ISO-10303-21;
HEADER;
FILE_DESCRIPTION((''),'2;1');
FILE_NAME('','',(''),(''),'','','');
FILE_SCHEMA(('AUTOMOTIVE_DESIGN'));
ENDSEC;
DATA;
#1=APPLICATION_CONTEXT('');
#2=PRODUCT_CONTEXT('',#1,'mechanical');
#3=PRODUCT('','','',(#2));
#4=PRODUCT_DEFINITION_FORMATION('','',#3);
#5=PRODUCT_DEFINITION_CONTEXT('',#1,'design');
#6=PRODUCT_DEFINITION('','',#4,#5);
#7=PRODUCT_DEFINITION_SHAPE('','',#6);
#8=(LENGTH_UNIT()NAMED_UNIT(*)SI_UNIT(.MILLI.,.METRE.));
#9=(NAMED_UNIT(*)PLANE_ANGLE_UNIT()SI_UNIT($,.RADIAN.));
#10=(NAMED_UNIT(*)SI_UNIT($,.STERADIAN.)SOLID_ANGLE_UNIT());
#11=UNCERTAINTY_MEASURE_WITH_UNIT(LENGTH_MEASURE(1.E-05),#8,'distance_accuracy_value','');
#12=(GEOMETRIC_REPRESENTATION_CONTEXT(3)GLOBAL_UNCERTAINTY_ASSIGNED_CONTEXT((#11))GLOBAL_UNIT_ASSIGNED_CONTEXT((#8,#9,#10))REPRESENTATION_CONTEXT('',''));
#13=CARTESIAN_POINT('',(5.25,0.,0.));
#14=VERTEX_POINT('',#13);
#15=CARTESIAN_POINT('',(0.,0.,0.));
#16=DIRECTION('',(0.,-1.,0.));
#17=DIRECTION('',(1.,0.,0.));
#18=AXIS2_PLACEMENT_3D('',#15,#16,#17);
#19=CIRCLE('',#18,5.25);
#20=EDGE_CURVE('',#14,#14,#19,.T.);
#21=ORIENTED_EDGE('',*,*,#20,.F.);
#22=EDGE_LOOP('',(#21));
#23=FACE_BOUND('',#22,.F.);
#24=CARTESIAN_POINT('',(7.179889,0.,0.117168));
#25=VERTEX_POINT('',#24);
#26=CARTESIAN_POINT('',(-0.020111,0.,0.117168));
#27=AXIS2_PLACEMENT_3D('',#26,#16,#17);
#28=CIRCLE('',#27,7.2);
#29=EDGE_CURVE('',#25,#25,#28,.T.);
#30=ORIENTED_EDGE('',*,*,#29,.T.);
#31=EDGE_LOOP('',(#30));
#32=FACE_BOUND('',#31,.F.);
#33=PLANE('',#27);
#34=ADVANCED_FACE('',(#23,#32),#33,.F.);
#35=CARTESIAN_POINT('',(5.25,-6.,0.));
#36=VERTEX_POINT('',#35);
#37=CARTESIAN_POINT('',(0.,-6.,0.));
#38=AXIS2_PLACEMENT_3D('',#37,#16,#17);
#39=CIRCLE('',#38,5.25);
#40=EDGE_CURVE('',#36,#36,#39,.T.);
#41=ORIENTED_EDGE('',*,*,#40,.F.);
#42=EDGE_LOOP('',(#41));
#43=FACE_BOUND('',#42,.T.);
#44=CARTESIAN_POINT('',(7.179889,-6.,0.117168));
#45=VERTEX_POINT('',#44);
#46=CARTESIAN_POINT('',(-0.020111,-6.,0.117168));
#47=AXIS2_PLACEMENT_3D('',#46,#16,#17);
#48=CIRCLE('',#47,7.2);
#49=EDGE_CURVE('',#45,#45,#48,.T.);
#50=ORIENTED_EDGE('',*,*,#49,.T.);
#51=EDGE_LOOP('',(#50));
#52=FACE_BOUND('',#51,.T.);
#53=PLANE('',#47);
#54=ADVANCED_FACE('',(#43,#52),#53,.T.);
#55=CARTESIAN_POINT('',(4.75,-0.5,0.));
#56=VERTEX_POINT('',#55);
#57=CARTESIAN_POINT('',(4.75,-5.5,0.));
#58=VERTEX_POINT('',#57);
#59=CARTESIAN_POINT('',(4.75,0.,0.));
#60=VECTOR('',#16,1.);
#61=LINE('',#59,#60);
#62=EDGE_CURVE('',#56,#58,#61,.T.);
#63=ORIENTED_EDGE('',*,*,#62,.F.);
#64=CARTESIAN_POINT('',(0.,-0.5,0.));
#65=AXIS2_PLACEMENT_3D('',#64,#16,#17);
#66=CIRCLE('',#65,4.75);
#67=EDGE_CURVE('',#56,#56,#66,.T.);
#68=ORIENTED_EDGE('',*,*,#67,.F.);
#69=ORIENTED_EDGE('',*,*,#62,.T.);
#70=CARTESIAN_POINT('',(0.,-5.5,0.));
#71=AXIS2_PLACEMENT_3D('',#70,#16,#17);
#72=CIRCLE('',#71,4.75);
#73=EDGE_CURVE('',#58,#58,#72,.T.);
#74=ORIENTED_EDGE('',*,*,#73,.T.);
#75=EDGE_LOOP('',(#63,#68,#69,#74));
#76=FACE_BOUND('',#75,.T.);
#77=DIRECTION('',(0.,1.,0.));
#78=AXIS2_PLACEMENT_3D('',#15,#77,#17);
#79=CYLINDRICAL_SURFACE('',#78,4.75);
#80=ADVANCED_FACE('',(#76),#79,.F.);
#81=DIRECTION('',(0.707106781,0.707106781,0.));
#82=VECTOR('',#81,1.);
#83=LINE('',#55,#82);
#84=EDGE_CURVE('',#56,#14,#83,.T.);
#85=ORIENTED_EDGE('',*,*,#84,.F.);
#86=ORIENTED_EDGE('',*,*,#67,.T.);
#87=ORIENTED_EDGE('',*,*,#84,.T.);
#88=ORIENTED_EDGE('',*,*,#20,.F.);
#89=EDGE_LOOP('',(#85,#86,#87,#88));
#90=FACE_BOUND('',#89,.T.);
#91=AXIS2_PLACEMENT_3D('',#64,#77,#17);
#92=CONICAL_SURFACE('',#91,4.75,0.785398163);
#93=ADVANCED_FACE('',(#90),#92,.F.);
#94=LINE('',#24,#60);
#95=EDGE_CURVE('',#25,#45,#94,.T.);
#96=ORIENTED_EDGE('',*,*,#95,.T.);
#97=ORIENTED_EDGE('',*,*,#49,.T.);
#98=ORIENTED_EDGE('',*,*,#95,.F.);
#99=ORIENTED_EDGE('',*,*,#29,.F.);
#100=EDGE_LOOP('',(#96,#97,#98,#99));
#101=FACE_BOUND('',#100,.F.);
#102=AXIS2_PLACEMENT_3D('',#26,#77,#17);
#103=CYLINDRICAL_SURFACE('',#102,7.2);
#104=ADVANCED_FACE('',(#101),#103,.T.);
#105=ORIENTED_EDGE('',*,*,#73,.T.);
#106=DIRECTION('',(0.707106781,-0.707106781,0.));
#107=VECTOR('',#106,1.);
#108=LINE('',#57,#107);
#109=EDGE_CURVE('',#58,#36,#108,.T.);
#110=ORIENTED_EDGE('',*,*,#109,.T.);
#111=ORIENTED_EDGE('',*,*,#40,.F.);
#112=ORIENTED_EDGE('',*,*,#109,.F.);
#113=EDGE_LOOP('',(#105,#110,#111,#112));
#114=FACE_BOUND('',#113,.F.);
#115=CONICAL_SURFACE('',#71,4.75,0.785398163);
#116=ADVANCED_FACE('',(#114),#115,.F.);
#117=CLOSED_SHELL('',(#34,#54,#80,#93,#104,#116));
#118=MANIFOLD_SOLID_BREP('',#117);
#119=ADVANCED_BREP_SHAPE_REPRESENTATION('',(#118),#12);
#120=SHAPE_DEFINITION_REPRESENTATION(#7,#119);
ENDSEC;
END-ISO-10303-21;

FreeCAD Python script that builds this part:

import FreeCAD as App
import Part
import Sketcher
from FreeCAD import Vector


def edges_at(feature, points):
    """Names of the edges that pass closest to the given points."""
    edges = feature.Shape.Edges
    near = lambda p: min(range(len(edges)), key=lambda i: edges[i].distToShape(Part.Vertex(*p))[0])
    return sorted({f"Edge{near(p) + 1}" for p in points})

doc = App.newDocument("Part")
body = doc.addObject("PartDesign::Body", "Body")
body.AllowCompound = True

# Sketch on XZ plane
sketch1 = doc.addObject("Sketcher::SketchObject", "Sketch")
body.addObject(sketch1)
sketch1.AttachmentSupport = (doc.XZ_Plane, [""])
sketch1.MapMode = "FlatFace"
sketch1.addGeometry([
    Part.Circle(Vector(0, 0.1, 0), Vector(0, 0, 1), 7.2),
    Part.Circle(Vector(0, 0, 0), Vector(0, 0, 1), 4.8),
    Part.Circle(Vector(0, 0, 0), Vector(0, 0, 1), 4.5),
], False)
sketch1.addConstraint([
    Sketcher.Constraint("Coincident", 1, 3, -1, 1),
    Sketcher.Constraint("Coincident", 2, 3, -1, 1),
    Sketcher.Constraint("Diameter", 2, 9.0),
    Sketcher.Constraint("Diameter", 0, 14.4),
    Sketcher.Constraint("Diameter", 1, 9.5),
    Sketcher.Constraint("DistanceX", 0, 3, -1, 1, 0.020111),
    Sketcher.Constraint("DistanceY", -1, 1, 0, 3, 0.117168),
])
pad1 = doc.addObject("PartDesign::Pad", "Pad")
body.addObject(pad1)
pad1.Profile = sketch1
pad1.Length = 6

# Sketch on XZ plane
sketch2 = doc.addObject("Sketcher::SketchObject", "Sketch001")
body.addObject(sketch2)
sketch2.AttachmentSupport = (doc.XZ_Plane, [""])
sketch2.MapMode = "FlatFace"
sketch2.AttachmentOffset = App.Placement(Vector(0, 0, 6), App.Rotation())
sketch2.addGeometry(Part.Circle(Vector(0, 0, 0), Vector(0, 0, 1), 4.5), False)
sketch2.addConstraint([
    Sketcher.Constraint("Coincident", 0, 3, -1, 1),
    Sketcher.Constraint("Diameter", 0, 9.0),
])
pocket1 = doc.addObject("PartDesign::Pocket", "Pocket")
body.addObject(pocket1)
pocket1.Profile = sketch2
pocket1.Type = "ThroughAll"
doc.recompute()

chamfer = doc.addObject("PartDesign::Chamfer", "Chamfer")
body.addObject(chamfer)
chamfer.Base = (pocket1, edges_at(pocket1, [(4.75, -3, 0), (-4.75, 0, 0), (-4.75, -6, 0)]))
chamfer.ChamferType = "Two distances"
chamfer.Size = 0.5
chamfer.Size2 = 0.5

doc.recompute()
